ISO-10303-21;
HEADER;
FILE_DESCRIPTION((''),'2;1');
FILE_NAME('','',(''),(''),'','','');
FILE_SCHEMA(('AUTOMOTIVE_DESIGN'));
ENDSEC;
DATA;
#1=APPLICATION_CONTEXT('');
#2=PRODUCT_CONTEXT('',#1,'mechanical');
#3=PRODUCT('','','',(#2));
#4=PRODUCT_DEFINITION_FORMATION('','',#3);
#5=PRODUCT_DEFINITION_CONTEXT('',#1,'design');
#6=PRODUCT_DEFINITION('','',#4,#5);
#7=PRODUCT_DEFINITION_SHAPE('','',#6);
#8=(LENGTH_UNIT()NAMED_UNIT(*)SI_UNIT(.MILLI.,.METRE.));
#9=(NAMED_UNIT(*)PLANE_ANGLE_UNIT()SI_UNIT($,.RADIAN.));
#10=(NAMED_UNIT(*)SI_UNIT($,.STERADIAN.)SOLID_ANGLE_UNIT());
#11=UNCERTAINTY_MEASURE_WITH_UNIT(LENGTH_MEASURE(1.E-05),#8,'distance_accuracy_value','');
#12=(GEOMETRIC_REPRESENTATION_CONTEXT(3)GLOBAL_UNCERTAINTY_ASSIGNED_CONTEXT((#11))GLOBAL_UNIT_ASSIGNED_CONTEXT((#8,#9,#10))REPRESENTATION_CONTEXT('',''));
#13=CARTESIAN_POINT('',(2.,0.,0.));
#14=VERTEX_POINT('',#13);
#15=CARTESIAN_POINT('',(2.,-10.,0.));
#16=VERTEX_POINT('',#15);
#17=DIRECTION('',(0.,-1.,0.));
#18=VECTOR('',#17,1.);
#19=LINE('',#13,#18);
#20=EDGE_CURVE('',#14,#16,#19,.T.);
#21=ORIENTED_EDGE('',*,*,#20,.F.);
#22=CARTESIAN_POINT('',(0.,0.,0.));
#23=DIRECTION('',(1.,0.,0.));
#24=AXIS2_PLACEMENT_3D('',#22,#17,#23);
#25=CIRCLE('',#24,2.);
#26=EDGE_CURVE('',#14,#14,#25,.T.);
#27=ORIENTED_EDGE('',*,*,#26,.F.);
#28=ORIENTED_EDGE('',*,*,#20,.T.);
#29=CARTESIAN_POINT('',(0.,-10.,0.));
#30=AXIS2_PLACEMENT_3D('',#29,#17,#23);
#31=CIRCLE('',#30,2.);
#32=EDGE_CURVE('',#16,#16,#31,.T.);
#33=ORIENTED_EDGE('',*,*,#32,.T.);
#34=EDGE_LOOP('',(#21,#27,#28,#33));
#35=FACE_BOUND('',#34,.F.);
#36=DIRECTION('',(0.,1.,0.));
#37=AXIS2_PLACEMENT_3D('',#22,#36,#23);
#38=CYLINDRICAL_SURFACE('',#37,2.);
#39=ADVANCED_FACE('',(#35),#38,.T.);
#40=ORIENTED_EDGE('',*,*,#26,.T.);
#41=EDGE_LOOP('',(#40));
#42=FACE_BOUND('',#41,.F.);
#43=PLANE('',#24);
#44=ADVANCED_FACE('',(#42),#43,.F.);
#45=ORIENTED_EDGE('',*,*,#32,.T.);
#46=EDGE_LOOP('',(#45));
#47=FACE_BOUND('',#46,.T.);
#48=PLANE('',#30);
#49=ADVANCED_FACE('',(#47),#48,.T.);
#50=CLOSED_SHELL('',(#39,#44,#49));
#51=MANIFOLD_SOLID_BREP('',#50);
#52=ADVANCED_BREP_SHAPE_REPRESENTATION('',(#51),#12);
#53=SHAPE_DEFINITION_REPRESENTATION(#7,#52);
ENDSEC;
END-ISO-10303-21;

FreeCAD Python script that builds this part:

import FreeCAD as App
import Part
import Sketcher
from FreeCAD import Vector
Q = App.Units.Quantity

doc = App.newDocument("Part")
params = doc.addObject("Spreadsheet::Sheet", "Params")
for row, (alias, value) in enumerate([
    ("sketch1_diameter", "4 mm"),
    ("pad1_length", "10 mm"),
], start=1):
    params.set(f"A{row}", alias)
    params.set(f"B{row}", "=" + value)
    params.setAlias(f"B{row}", alias)

body = doc.addObject("PartDesign::Body", "Body")

sketch1 = body.newObject("Sketcher::SketchObject", "Sketch")
sketch1.AttachmentSupport = (doc.getObject("XY_Plane"), [""])
sketch1.MapMode = "FlatFace"
sketch1.addGeometry(Part.Circle(Vector(0, 0, 0), Vector(0, 0, 1), 2), False)
sketch1.addConstraint([
    Sketcher.Constraint("Coincident", 0, 3, -1, 1),
    Sketcher.Constraint("Diameter", 0, Q("4 mm")),
])
sketch1.setExpression("Constraints[1]", "Params.sketch1_diameter")
pad1 = body.newObject("PartDesign::Pad", "Pad")
pad1.Profile = sketch1
pad1.setExpression("Length", "Params.pad1_length")
body2 = doc.addObject("PartDesign::Body", "Body001")
doc.recompute()

body.Placement = App.Placement(Vector(0, 0, 0), App.Rotation(Vector(1, 0, 0), 90))
boolean = body2.newObject("PartDesign::Boolean", "Boolean")
boolean.Type = "Fuse"
boolean.addObjects([body])

doc.recompute()
